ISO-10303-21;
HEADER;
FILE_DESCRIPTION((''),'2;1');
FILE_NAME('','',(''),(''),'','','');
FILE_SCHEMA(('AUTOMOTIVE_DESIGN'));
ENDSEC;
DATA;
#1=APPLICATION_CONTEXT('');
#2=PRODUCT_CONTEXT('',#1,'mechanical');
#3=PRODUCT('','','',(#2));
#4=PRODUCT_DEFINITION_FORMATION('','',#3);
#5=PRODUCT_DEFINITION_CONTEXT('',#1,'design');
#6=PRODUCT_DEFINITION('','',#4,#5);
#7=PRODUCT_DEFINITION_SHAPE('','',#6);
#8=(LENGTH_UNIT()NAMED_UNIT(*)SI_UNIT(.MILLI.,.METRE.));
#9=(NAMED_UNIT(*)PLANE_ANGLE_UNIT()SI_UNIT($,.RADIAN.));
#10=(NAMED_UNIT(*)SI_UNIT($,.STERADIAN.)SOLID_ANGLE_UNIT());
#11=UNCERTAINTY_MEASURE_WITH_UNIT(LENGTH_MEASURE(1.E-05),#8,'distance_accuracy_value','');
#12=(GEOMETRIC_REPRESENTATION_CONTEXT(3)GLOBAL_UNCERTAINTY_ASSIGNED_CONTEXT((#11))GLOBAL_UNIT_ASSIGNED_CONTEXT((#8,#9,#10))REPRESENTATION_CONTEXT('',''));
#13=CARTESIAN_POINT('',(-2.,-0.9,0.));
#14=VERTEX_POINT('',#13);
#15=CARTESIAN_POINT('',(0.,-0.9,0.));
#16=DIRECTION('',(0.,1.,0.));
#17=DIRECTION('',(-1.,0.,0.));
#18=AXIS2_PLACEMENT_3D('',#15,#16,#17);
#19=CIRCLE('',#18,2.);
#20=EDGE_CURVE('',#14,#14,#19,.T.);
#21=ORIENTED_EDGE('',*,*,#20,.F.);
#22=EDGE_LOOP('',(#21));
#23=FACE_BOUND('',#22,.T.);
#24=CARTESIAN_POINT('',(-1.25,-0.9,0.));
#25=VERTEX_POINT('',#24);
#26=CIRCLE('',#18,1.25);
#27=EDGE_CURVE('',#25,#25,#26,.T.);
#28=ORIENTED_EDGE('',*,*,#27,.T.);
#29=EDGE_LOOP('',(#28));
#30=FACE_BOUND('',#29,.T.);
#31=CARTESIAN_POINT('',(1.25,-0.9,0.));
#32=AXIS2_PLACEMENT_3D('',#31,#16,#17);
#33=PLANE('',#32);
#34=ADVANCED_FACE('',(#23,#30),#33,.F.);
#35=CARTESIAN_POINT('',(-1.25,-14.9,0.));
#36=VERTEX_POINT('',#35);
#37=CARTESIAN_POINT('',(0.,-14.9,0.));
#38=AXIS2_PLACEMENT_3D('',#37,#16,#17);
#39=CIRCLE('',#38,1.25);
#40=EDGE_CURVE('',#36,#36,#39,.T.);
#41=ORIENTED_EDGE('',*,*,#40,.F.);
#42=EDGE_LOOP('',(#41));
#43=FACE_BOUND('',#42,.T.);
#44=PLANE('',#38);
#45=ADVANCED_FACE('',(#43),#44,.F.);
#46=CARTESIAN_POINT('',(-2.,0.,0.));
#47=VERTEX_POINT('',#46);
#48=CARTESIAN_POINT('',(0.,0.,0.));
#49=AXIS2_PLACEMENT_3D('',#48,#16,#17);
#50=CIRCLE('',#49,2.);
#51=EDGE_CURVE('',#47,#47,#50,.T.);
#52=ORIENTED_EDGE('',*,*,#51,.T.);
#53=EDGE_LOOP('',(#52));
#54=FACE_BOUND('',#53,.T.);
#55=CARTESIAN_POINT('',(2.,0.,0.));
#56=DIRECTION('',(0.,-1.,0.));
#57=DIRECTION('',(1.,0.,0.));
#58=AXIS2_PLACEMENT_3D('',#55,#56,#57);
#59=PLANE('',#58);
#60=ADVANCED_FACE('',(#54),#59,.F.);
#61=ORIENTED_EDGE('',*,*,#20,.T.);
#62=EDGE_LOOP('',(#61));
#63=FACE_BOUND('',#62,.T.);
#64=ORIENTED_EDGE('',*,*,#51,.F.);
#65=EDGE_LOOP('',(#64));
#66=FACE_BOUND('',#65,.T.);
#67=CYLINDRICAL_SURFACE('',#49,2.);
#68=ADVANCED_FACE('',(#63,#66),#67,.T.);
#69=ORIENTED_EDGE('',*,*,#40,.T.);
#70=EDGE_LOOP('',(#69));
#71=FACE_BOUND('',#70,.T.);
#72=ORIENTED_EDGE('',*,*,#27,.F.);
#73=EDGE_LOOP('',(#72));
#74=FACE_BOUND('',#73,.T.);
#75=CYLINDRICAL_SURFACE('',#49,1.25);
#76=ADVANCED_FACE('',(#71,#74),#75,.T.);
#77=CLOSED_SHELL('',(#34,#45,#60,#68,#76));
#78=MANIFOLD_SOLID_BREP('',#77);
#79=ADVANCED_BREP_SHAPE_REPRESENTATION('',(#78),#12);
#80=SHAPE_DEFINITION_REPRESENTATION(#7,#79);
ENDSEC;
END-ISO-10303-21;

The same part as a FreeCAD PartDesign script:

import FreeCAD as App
import Part
import Sketcher

V = App.Vector
Q = App.Units.Quantity


def add_polygon(sketch, points):
    """Adds a closed chain of lines whose ends are joined by coincident constraints."""
    first, n = sketch.GeometryCount, len(points)
    for a, b in zip(points, points[1:] + points[:1]):
        sketch.addGeometry(Part.LineSegment(App.Vector(*a, 0), App.Vector(*b, 0)), False)
    for i in range(n):
        sketch.addConstraint(Sketcher.Constraint("Coincident", first + i, 2, first + (i + 1) % n, 1))

doc = App.newDocument("Part")
body = doc.addObject("PartDesign::Body", "Body")

sketch1 = body.newObject("Sketcher::SketchObject", "Sketch")
sketch1.AttachmentSupport = (doc.getObject("XY_Plane"), [""])
sketch1.MapMode = "FlatFace"
add_polygon(sketch1, [(0, 0), (0, -14.9), (1.2, -14.9), (1.2, -0.9), (2, -0.9), (2, 0)])
sketch1.addConstraint(Sketcher.Constraint("Vertical", 0))
sketch1.addConstraint(Sketcher.Constraint("Horizontal", 1))
sketch1.addConstraint(Sketcher.Constraint("Vertical", 2))
sketch1.addConstraint(Sketcher.Constraint("Horizontal", 3))
sketch1.addConstraint(Sketcher.Constraint("Vertical", 4))
sketch1.addConstraint(Sketcher.Constraint("Horizontal", 5))
sketch1.addConstraint(Sketcher.Constraint("Coincident", 5, 2, -1, 1))
sketch1.addConstraint(Sketcher.Constraint("DistanceX", 5, 2, 5, 1, Q("2 mm")))
sketch1.addConstraint(Sketcher.Constraint("DistanceY", 2, 1, 2, 2, Q("14 mm")))
sketch1.addConstraint(Sketcher.Constraint("DistanceY", 0, 2, 0, 1, Q("14.9 mm")))
sketch1.addConstraint(Sketcher.Constraint("DistanceX", 1, 1, 1, 2, Q("1.25 mm")))
revolution = body.newObject("PartDesign::Revolution", "Revolution")
revolution.Profile = sketch1
revolution.ReferenceAxis = (sketch1, ["V_Axis"])
revolution.Angle = 360

doc.recompute()
